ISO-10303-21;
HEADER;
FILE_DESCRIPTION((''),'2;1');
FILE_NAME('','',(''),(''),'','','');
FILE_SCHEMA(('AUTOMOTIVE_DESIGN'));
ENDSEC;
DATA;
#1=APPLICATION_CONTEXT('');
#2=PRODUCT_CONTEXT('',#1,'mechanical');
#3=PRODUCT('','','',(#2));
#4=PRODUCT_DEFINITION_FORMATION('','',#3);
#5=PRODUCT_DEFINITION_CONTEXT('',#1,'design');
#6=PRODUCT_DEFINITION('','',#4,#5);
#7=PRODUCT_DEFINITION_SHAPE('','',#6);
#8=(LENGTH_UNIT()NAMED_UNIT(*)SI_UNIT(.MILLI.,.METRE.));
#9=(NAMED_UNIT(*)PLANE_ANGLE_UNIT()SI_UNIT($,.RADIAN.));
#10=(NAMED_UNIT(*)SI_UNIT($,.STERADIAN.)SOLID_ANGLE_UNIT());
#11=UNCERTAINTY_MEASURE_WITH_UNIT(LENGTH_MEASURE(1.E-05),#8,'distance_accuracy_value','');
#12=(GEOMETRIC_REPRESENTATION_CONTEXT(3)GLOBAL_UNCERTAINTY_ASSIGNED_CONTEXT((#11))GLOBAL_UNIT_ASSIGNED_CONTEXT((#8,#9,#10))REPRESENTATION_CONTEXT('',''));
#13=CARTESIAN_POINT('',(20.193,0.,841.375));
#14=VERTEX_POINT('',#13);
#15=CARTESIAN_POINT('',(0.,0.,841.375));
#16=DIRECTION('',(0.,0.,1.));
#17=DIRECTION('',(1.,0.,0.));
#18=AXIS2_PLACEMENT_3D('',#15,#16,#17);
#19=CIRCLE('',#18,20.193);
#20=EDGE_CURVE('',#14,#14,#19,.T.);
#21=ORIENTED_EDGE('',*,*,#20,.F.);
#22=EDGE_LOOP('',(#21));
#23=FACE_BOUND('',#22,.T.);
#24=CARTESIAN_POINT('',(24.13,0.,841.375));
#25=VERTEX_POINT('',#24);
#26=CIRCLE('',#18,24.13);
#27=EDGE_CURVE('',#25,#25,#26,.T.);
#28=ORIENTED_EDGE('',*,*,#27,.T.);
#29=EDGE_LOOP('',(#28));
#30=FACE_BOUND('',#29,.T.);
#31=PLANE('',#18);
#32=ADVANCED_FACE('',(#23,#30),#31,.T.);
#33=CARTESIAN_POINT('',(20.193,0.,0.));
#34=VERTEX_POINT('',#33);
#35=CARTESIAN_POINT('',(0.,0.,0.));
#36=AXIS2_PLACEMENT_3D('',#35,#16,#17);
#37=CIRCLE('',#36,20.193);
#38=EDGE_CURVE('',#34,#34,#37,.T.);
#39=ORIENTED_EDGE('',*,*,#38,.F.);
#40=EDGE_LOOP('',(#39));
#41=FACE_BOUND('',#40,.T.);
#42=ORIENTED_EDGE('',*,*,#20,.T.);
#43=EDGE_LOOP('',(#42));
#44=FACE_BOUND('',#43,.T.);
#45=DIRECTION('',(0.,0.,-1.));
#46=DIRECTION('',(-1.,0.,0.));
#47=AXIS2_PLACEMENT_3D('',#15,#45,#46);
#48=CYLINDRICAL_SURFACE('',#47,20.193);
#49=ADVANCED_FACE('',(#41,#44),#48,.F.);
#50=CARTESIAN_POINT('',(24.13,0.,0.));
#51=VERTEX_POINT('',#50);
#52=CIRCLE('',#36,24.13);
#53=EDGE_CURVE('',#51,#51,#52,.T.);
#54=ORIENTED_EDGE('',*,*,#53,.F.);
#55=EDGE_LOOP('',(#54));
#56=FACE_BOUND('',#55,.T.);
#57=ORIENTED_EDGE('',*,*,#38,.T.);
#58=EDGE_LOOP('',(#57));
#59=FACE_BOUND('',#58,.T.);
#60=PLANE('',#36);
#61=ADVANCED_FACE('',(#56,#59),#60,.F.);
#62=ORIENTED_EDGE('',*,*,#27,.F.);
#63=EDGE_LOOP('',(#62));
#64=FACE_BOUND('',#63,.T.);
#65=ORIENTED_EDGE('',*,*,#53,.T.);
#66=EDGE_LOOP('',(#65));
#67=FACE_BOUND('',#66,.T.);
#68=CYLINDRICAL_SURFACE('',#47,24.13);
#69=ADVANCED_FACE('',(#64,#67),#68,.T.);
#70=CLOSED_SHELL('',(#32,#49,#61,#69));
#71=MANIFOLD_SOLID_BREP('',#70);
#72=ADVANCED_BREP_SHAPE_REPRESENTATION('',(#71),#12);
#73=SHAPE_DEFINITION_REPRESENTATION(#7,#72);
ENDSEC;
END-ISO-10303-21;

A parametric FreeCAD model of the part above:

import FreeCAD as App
import Part
import Sketcher
from FreeCAD import Vector
Q = App.Units.Quantity

doc = App.newDocument("Part")
body = doc.addObject("PartDesign::Body", "Body")

sketch1 = body.newObject("Sketcher::SketchObject", "Sketch")
sketch1.AttachmentSupport = (doc.getObject("XY_Plane"), [""])
sketch1.MapMode = "FlatFace"
sketch1.addGeometry(Part.Circle(Vector(0, 0, 0), Vector(0, 0, 1), 24), False)
sketch1.addGeometry(Part.Circle(Vector(0, 0, 0), Vector(0, 0, 1), 20), False)
sketch1.addConstraint(Sketcher.Constraint("Coincident", 0, 3, -1, 1))
sketch1.addConstraint(Sketcher.Constraint("Coincident", 1, 3, -1, 1))
sketch1.addConstraint(Sketcher.Constraint("Diameter", 0, Q("1.9 in")))
sketch1.addConstraint(Sketcher.Constraint("Diameter", 1, Q("1.59 in")))
pad1 = body.newObject("PartDesign::Pad", "Pad")
pad1.Profile = sketch1
pad1.Length = Q("33.125 in")

doc.recompute()
